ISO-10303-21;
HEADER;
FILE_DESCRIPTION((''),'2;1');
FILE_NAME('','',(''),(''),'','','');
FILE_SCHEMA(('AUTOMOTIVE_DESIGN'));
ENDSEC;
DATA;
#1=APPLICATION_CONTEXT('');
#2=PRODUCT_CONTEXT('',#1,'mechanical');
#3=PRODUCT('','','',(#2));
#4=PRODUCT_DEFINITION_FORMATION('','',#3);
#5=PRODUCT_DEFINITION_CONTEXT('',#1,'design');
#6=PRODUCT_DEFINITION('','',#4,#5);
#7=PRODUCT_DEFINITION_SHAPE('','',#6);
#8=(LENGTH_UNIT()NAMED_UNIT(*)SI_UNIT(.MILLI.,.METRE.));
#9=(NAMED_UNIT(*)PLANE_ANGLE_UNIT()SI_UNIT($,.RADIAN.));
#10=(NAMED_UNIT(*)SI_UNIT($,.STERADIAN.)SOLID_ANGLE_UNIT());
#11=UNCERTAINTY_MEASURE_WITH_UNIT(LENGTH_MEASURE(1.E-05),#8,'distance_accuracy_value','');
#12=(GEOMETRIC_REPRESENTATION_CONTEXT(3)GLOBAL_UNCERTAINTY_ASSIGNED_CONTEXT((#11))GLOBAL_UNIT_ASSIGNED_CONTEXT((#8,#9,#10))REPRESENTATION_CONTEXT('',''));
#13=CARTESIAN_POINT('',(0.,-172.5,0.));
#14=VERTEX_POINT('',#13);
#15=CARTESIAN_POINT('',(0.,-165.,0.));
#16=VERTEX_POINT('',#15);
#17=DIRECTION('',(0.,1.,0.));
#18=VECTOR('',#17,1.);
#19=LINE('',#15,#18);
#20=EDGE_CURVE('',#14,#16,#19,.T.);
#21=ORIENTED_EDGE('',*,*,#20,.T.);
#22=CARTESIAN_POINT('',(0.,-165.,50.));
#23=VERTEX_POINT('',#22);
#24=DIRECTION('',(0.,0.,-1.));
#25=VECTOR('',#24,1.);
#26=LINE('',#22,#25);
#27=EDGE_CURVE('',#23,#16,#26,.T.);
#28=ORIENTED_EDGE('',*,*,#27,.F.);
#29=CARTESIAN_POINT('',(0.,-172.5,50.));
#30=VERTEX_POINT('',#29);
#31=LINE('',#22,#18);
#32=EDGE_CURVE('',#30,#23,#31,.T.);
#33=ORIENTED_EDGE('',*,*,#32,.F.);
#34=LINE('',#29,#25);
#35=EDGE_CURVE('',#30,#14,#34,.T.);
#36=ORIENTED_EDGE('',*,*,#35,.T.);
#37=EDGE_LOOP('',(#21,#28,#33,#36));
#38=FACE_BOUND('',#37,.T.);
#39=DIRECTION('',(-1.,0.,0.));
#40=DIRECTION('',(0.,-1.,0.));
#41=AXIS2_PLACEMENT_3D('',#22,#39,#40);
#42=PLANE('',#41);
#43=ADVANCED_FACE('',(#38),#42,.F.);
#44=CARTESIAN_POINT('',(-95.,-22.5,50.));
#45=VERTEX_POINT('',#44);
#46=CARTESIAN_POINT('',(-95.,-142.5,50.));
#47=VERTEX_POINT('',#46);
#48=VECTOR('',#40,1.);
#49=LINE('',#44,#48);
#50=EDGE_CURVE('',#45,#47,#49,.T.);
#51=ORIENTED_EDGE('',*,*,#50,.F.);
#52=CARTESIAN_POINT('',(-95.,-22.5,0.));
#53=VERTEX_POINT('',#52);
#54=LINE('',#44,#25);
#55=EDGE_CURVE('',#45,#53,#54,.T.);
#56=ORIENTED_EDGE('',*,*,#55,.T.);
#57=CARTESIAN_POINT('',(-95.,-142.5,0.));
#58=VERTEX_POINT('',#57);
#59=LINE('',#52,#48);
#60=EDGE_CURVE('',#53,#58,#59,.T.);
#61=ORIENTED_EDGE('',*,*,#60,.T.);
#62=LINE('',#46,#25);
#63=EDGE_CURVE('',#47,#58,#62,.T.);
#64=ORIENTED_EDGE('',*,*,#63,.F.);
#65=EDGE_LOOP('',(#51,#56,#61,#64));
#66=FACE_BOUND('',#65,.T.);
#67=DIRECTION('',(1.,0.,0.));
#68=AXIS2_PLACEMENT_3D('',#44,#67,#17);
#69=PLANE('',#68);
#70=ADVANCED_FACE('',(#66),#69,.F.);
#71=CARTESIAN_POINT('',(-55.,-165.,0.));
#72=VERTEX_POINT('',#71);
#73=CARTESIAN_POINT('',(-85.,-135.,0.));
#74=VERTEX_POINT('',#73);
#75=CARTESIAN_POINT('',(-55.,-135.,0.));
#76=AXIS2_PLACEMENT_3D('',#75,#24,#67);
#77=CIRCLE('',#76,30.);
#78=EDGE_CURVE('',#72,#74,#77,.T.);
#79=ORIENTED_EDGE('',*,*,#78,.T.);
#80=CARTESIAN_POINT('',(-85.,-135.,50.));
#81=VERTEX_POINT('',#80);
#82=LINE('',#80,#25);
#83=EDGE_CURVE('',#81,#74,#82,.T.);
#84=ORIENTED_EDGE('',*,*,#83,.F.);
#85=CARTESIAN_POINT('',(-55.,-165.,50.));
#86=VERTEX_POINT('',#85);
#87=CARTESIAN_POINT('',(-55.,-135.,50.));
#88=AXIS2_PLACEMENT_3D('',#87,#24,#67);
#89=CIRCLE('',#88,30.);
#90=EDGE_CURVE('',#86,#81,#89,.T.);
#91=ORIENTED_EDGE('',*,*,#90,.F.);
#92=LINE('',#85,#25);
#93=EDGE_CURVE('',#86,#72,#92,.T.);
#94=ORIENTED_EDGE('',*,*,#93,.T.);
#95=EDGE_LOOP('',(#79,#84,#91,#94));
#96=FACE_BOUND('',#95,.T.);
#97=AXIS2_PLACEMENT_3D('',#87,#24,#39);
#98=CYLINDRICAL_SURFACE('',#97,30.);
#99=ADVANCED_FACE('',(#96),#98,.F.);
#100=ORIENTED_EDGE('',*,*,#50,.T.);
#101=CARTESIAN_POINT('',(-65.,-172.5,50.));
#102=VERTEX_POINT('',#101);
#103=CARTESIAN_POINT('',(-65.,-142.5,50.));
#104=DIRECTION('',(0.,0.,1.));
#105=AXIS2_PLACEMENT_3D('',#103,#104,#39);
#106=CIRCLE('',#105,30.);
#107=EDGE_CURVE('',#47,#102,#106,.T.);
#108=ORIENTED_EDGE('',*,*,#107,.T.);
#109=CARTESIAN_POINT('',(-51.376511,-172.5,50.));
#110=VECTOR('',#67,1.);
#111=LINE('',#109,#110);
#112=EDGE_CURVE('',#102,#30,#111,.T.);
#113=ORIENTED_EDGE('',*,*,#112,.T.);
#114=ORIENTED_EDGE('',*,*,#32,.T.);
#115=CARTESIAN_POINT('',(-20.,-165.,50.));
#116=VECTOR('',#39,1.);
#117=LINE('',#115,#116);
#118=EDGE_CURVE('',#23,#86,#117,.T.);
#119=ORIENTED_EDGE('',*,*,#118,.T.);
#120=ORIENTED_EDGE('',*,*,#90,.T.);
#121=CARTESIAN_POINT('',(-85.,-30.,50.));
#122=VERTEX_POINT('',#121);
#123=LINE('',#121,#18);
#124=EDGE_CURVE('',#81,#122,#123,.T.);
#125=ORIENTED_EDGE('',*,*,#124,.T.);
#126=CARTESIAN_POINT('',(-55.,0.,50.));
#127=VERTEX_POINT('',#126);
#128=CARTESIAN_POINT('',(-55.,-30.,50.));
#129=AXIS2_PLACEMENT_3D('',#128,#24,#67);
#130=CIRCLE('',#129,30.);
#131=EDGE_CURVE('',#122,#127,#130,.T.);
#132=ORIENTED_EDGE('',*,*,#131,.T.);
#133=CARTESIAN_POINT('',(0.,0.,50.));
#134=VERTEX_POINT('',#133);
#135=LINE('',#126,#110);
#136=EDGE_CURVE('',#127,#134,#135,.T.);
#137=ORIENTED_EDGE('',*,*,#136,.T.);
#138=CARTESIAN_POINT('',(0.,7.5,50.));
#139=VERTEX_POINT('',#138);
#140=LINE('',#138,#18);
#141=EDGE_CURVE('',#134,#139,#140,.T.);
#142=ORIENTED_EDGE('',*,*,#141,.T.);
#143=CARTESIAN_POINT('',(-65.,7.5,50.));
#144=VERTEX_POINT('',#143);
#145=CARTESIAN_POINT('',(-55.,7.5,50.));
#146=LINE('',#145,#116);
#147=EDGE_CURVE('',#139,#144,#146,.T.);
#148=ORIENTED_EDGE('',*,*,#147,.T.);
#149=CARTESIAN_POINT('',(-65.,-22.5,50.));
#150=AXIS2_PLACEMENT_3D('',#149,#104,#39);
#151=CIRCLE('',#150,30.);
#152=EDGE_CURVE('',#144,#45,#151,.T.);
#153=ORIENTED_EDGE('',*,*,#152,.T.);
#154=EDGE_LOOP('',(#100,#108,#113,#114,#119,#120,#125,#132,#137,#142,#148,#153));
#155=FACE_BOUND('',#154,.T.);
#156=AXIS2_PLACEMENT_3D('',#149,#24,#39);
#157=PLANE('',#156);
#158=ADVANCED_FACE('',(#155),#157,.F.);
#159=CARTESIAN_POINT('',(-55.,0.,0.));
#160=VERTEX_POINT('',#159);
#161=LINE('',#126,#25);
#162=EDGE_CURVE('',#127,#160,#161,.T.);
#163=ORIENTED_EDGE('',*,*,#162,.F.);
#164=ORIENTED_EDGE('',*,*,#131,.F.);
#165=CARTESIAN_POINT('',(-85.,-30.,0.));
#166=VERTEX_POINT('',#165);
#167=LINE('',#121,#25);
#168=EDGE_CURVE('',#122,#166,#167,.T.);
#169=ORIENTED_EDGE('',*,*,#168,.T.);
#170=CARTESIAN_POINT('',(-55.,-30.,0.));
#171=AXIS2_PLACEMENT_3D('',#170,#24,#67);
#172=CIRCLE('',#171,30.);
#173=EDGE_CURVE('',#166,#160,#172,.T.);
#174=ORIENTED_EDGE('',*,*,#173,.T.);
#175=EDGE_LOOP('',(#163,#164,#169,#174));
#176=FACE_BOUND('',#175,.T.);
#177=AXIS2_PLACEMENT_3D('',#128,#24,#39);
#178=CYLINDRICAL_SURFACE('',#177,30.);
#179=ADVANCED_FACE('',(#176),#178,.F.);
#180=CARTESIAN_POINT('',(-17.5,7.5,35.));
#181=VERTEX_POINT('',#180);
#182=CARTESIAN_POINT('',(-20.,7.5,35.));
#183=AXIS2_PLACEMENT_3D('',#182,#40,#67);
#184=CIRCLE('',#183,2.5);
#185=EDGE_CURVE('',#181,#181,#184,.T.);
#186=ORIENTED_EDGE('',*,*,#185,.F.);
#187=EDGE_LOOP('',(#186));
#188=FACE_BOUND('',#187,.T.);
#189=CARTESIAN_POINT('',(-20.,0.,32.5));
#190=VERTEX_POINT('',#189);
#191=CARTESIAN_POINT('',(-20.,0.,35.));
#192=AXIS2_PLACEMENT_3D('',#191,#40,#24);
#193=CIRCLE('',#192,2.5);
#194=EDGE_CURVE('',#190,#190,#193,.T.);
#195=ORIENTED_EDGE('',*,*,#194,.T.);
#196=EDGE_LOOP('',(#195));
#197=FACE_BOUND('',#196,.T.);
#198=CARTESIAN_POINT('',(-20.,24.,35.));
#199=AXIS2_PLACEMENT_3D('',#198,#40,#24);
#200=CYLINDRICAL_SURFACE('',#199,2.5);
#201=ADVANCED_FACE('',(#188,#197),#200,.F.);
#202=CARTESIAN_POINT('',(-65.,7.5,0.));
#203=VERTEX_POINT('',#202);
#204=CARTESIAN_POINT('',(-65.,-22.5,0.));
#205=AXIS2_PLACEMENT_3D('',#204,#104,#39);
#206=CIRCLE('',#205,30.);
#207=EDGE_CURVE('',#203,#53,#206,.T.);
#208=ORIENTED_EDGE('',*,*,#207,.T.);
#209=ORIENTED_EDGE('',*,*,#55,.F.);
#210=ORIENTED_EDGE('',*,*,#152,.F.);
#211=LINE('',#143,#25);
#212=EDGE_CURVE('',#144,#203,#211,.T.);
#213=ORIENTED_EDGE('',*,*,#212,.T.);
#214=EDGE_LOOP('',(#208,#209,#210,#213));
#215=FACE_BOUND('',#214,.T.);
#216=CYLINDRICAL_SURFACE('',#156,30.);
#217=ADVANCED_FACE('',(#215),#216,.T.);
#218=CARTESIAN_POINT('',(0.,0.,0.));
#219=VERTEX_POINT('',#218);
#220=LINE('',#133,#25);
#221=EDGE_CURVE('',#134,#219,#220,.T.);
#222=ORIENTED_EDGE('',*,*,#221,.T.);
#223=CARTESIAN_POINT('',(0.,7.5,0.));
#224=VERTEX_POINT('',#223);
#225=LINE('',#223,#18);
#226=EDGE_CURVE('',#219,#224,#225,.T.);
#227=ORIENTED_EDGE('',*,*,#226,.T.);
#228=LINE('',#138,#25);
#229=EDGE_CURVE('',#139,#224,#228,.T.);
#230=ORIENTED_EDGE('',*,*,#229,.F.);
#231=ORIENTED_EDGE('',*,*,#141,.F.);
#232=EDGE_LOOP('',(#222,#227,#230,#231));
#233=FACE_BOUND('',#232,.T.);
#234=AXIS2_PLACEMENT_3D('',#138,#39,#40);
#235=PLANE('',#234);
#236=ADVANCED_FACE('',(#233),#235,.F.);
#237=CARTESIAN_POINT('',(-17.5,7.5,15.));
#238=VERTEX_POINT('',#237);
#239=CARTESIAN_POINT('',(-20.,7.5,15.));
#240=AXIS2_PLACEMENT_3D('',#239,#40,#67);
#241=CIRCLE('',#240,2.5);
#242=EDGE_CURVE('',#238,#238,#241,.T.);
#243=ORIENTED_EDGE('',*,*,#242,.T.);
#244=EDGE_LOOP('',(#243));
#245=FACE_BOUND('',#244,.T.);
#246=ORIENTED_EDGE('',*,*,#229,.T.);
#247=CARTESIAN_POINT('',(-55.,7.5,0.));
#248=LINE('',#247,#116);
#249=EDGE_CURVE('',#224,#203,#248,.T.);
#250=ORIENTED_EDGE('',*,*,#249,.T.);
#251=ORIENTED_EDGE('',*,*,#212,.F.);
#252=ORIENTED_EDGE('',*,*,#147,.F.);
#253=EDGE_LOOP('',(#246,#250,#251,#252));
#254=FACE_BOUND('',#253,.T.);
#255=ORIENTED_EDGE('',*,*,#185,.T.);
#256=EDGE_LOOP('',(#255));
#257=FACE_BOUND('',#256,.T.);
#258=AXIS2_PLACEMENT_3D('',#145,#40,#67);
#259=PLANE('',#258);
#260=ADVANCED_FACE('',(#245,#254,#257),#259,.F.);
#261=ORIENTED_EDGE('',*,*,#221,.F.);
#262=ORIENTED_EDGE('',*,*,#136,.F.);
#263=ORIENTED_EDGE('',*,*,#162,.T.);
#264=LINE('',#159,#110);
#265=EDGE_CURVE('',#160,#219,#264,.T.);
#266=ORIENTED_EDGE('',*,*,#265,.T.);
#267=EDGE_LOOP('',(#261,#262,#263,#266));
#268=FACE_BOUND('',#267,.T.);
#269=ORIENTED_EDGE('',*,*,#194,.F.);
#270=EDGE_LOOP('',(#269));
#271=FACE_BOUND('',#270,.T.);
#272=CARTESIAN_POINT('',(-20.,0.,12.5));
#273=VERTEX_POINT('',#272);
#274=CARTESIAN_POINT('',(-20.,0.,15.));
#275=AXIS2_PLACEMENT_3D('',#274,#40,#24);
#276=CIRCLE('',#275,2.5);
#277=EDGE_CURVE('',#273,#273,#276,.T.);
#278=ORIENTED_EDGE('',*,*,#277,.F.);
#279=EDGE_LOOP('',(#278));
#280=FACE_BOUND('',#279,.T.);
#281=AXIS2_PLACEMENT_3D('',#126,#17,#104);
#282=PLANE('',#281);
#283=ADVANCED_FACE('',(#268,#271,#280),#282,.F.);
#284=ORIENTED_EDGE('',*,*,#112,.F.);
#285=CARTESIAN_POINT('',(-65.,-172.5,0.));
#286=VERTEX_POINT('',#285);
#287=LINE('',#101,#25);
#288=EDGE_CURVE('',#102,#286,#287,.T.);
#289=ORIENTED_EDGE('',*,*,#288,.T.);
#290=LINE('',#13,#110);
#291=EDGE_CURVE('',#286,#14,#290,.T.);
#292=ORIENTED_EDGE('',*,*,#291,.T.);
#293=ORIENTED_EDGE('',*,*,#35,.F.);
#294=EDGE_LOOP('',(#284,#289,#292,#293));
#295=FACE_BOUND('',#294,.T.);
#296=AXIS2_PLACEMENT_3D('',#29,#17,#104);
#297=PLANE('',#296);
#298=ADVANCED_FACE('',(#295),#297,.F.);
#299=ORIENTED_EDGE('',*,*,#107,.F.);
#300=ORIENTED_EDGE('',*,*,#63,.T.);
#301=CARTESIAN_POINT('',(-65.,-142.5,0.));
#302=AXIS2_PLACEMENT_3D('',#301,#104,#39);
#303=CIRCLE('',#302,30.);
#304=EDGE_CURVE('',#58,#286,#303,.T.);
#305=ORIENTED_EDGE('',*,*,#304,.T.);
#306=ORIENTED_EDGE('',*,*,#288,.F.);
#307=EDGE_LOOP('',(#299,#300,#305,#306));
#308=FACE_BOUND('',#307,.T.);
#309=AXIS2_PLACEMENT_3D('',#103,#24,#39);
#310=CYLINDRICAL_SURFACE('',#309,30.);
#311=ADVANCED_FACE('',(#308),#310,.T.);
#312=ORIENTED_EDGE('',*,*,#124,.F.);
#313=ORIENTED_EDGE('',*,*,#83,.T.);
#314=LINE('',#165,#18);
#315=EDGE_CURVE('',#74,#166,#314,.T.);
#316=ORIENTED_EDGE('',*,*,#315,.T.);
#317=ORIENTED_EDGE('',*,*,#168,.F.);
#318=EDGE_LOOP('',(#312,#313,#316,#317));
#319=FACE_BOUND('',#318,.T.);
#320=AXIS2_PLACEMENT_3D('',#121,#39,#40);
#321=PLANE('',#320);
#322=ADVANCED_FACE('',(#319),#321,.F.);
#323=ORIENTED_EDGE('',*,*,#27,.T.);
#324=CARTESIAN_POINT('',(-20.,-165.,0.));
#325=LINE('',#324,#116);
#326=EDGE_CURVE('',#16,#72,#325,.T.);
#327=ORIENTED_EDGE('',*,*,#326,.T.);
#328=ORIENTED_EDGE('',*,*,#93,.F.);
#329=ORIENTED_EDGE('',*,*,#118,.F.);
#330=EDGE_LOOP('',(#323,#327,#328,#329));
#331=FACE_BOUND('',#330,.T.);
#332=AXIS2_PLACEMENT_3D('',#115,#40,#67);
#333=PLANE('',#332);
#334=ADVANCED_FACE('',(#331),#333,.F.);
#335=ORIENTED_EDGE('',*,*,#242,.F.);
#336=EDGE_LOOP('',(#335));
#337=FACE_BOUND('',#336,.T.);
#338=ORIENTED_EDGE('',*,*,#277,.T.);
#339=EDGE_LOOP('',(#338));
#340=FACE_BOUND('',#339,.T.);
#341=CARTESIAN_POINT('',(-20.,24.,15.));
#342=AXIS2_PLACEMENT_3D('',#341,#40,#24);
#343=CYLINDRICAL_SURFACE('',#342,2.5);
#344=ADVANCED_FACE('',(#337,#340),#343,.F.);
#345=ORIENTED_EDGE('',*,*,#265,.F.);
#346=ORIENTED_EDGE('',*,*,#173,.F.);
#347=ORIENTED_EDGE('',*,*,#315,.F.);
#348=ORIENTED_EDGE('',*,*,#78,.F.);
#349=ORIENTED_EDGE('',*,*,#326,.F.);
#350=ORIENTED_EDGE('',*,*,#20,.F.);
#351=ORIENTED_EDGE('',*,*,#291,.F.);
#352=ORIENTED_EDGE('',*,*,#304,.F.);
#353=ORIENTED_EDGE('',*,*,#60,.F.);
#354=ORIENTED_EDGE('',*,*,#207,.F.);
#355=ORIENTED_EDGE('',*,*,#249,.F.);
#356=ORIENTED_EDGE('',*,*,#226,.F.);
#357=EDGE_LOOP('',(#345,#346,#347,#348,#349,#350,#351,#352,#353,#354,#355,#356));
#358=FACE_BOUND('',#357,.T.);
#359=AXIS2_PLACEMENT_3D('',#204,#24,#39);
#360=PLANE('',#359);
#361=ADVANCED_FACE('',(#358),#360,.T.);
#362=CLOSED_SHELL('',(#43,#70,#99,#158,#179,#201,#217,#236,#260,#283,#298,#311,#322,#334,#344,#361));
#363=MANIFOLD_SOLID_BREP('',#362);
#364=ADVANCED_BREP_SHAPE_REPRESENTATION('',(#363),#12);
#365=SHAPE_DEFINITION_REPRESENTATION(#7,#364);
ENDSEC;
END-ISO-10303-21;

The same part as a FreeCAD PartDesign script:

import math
import FreeCAD as App
import Part
import Sketcher
Q = App.Units.Quantity

doc = App.newDocument("Part")
body = doc.addObject("PartDesign::Body", "Body")

sketch1 = body.newObject("Sketcher::SketchObject", "Sketch")
sketch1.AttachmentSupport = (doc.getObject("XY_Plane"), [""])
sketch1.MapMode = "FlatFace"
sketch1.addGeometry(Part.LineSegment(App.Vector(0, -172, 0), App.Vector(0, -165, 0)), False)
sketch1.addGeometry(Part.LineSegment(App.Vector(0, -165, 0), App.Vector(-55, -165, 0)), False)
sketch1.addGeometry(Part.ArcOfCircle(Part.Circle(App.Vector(-55, -135, 0), App.Vector(0, 0, 1), 30), math.radians(180), math.radians(270)), False)
sketch1.addGeometry(Part.LineSegment(App.Vector(-85, -135, 0), App.Vector(-85, -30, 0)), False)
sketch1.addGeometry(Part.ArcOfCircle(Part.Circle(App.Vector(-55, -30, 0), App.Vector(0, 0, 1), 30), math.radians(90), math.radians(180)), False)
sketch1.addGeometry(Part.LineSegment(App.Vector(-55, 0, 0), App.Vector(0, 0, 0)), False)
sketch1.addGeometry(Part.LineSegment(App.Vector(0, 0, 0), App.Vector(0, 8, 0)), False)
sketch1.addGeometry(Part.LineSegment(App.Vector(0, 8, 0), App.Vector(-65, 8, 0)), False)
sketch1.addGeometry(Part.ArcOfCircle(Part.Circle(App.Vector(-65, -22, 0), App.Vector(0, 0, 1), 30), math.radians(90), math.radians(180)), False)
sketch1.addGeometry(Part.LineSegment(App.Vector(-95, -22, 0), App.Vector(-95, -142, 0)), False)
sketch1.addGeometry(Part.ArcOfCircle(Part.Circle(App.Vector(-65, -143, 0), App.Vector(0, 0, 1), 30), math.radians(180), math.radians(270)), False)
sketch1.addGeometry(Part.LineSegment(App.Vector(-65, -172, 0), App.Vector(0, -172, 0)), False)
sketch1.addConstraint(Sketcher.Constraint("Coincident", 0, 2, 1, 1))
sketch1.addConstraint(Sketcher.Constraint("Tangent", 1, 2, 2, 2))
sketch1.addConstraint(Sketcher.Constraint("Tangent", 2, 1, 3, 1))
sketch1.addConstraint(Sketcher.Constraint("Tangent", 3, 2, 4, 2))
sketch1.addConstraint(Sketcher.Constraint("Tangent", 4, 1, 5, 1))
sketch1.addConstraint(Sketcher.Constraint("Coincident", 5, 2, 6, 1))
sketch1.addConstraint(Sketcher.Constraint("Coincident", 6, 2, 7, 1))
sketch1.addConstraint(Sketcher.Constraint("Tangent", 7, 2, 8, 1))
sketch1.addConstraint(Sketcher.Constraint("Tangent", 8, 2, 9, 1))
sketch1.addConstraint(Sketcher.Constraint("Tangent", 9, 2, 10, 1))
sketch1.addConstraint(Sketcher.Constraint("Tangent", 10, 2, 11, 1))
sketch1.addConstraint(Sketcher.Constraint("Coincident", 11, 2, 0, 1))
sketch1.addConstraint(Sketcher.Constraint("Vertical", 0))
sketch1.addConstraint(Sketcher.Constraint("Horizontal", 1))
sketch1.addConstraint(Sketcher.Constraint("Vertical", 3))
sketch1.addConstraint(Sketcher.Constraint("Horizontal", 5))
sketch1.addConstraint(Sketcher.Constraint("Vertical", 6))
sketch1.addConstraint(Sketcher.Constraint("Horizontal", 7))
sketch1.addConstraint(Sketcher.Constraint("Vertical", 9))
sketch1.addConstraint(Sketcher.Constraint("Horizontal", 11))
sketch1.addConstraint(Sketcher.Constraint("Coincident", 5, 2, -1, 1))
sketch1.addConstraint(Sketcher.Constraint("Equal", 2, 4))
sketch1.addConstraint(Sketcher.Constraint("Equal", 4, 8))
sketch1.addConstraint(Sketcher.Constraint("Equal", 8, 10))
sketch1.addConstraint(Sketcher.Constraint("PointOnObject", 0, 2, -2))
sketch1.addConstraint(Sketcher.Constraint("Equal", 0, 6))
sketch1.addConstraint(Sketcher.Constraint("Radius", 2, Q("30 mm")))
sketch1.addConstraint(Sketcher.Constraint("DistanceX", 1, 2, 1, 1, Q("55 mm")))
sketch1.addConstraint(Sketcher.Constraint("DistanceX", 7, 2, 7, 1, Q("65 mm")))
sketch1.addConstraint(Sketcher.Constraint("DistanceY", 3, 1, 3, 2, Q("105 mm")))
sketch1.addConstraint(Sketcher.Constraint("DistanceY", 9, 2, 9, 1, Q("120 mm")))
pad1 = body.newObject("PartDesign::Pad", "Pad")
pad1.Profile = sketch1
pad1.Length = 50

sketch2 = body.newObject("Sketcher::SketchObject", "Sketch001")
sketch2.AttachmentSupport = (doc.getObject("XZ_Plane"), [""])
sketch2.MapMode = "FlatFace"
sketch2.addGeometry(Part.Circle(App.Vector(-20, 35, 0), App.Vector(0, 0, 1), 2.5), False)
sketch2.addGeometry(Part.Circle(App.Vector(-20, 15, 0), App.Vector(0, 0, 1), 2.5), False)
sketch2.addConstraint(Sketcher.Constraint("Equal", 0, 1))
sketch2.addConstraint(Sketcher.Constraint("Vertical", 0, 3, 1, 3))
sketch2.addConstraint(Sketcher.Constraint("Diameter", 0, Q("5 mm")))
sketch2.addConstraint(Sketcher.Constraint("DistanceX", 0, 3, -1, 1, Q("20 mm")))
sketch2.addConstraint(Sketcher.Constraint("DistanceY", -1, 1, 0, 3, Q("35 mm")))
sketch2.addConstraint(Sketcher.Constraint("DistanceY", -1, 1, 1, 3, Q("15 mm")))
pocket1 = body.newObject("PartDesign::Pocket", "Pocket")
pocket1.Profile = sketch2
pocket1.Length = 24

doc.recompute()
